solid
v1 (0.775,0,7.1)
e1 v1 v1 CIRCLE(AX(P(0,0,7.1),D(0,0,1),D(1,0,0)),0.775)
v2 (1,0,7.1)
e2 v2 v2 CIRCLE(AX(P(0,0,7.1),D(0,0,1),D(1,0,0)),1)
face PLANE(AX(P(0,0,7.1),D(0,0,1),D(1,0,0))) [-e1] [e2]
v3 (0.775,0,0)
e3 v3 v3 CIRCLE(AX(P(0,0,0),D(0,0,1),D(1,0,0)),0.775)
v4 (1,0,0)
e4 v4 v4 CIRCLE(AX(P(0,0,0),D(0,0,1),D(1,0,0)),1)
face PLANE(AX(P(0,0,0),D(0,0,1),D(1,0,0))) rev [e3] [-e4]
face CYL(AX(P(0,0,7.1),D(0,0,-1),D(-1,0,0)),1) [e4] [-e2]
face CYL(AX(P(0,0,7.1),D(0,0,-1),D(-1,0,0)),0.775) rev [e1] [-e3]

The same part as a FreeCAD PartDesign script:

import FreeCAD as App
import Part
import Sketcher

doc = App.newDocument("Part")
body = doc.addObject("PartDesign::Body", "Body")

sketch1 = doc.addObject("Sketcher::SketchObject", "Sketch")
body.addObject(sketch1)
sketch1.AttachmentSupport = (doc.XY_Plane, [""])
sketch1.MapMode = "FlatFace"
sketch1.addGeometry([
    Part.Circle(App.Vector(0, 0, 0), App.Vector(0, 0, 1), 1),
    Part.Circle(App.Vector(0, 0, 0), App.Vector(0, 0, 1), 0.775),
], False)
sketch1.addConstraint([
    Sketcher.Constraint("Coincident", 0, 3, -1, 1),
    Sketcher.Constraint("Coincident", 1, 3, -1, 1),
    Sketcher.Constraint("Diameter", 0, 2.0),
    Sketcher.Constraint("Diameter", 1, 1.55),
])
pad1 = doc.addObject("PartDesign::Pad", "Pad")
body.addObject(pad1)
pad1.Profile = sketch1
pad1.Length = 7.1

doc.recompute()
